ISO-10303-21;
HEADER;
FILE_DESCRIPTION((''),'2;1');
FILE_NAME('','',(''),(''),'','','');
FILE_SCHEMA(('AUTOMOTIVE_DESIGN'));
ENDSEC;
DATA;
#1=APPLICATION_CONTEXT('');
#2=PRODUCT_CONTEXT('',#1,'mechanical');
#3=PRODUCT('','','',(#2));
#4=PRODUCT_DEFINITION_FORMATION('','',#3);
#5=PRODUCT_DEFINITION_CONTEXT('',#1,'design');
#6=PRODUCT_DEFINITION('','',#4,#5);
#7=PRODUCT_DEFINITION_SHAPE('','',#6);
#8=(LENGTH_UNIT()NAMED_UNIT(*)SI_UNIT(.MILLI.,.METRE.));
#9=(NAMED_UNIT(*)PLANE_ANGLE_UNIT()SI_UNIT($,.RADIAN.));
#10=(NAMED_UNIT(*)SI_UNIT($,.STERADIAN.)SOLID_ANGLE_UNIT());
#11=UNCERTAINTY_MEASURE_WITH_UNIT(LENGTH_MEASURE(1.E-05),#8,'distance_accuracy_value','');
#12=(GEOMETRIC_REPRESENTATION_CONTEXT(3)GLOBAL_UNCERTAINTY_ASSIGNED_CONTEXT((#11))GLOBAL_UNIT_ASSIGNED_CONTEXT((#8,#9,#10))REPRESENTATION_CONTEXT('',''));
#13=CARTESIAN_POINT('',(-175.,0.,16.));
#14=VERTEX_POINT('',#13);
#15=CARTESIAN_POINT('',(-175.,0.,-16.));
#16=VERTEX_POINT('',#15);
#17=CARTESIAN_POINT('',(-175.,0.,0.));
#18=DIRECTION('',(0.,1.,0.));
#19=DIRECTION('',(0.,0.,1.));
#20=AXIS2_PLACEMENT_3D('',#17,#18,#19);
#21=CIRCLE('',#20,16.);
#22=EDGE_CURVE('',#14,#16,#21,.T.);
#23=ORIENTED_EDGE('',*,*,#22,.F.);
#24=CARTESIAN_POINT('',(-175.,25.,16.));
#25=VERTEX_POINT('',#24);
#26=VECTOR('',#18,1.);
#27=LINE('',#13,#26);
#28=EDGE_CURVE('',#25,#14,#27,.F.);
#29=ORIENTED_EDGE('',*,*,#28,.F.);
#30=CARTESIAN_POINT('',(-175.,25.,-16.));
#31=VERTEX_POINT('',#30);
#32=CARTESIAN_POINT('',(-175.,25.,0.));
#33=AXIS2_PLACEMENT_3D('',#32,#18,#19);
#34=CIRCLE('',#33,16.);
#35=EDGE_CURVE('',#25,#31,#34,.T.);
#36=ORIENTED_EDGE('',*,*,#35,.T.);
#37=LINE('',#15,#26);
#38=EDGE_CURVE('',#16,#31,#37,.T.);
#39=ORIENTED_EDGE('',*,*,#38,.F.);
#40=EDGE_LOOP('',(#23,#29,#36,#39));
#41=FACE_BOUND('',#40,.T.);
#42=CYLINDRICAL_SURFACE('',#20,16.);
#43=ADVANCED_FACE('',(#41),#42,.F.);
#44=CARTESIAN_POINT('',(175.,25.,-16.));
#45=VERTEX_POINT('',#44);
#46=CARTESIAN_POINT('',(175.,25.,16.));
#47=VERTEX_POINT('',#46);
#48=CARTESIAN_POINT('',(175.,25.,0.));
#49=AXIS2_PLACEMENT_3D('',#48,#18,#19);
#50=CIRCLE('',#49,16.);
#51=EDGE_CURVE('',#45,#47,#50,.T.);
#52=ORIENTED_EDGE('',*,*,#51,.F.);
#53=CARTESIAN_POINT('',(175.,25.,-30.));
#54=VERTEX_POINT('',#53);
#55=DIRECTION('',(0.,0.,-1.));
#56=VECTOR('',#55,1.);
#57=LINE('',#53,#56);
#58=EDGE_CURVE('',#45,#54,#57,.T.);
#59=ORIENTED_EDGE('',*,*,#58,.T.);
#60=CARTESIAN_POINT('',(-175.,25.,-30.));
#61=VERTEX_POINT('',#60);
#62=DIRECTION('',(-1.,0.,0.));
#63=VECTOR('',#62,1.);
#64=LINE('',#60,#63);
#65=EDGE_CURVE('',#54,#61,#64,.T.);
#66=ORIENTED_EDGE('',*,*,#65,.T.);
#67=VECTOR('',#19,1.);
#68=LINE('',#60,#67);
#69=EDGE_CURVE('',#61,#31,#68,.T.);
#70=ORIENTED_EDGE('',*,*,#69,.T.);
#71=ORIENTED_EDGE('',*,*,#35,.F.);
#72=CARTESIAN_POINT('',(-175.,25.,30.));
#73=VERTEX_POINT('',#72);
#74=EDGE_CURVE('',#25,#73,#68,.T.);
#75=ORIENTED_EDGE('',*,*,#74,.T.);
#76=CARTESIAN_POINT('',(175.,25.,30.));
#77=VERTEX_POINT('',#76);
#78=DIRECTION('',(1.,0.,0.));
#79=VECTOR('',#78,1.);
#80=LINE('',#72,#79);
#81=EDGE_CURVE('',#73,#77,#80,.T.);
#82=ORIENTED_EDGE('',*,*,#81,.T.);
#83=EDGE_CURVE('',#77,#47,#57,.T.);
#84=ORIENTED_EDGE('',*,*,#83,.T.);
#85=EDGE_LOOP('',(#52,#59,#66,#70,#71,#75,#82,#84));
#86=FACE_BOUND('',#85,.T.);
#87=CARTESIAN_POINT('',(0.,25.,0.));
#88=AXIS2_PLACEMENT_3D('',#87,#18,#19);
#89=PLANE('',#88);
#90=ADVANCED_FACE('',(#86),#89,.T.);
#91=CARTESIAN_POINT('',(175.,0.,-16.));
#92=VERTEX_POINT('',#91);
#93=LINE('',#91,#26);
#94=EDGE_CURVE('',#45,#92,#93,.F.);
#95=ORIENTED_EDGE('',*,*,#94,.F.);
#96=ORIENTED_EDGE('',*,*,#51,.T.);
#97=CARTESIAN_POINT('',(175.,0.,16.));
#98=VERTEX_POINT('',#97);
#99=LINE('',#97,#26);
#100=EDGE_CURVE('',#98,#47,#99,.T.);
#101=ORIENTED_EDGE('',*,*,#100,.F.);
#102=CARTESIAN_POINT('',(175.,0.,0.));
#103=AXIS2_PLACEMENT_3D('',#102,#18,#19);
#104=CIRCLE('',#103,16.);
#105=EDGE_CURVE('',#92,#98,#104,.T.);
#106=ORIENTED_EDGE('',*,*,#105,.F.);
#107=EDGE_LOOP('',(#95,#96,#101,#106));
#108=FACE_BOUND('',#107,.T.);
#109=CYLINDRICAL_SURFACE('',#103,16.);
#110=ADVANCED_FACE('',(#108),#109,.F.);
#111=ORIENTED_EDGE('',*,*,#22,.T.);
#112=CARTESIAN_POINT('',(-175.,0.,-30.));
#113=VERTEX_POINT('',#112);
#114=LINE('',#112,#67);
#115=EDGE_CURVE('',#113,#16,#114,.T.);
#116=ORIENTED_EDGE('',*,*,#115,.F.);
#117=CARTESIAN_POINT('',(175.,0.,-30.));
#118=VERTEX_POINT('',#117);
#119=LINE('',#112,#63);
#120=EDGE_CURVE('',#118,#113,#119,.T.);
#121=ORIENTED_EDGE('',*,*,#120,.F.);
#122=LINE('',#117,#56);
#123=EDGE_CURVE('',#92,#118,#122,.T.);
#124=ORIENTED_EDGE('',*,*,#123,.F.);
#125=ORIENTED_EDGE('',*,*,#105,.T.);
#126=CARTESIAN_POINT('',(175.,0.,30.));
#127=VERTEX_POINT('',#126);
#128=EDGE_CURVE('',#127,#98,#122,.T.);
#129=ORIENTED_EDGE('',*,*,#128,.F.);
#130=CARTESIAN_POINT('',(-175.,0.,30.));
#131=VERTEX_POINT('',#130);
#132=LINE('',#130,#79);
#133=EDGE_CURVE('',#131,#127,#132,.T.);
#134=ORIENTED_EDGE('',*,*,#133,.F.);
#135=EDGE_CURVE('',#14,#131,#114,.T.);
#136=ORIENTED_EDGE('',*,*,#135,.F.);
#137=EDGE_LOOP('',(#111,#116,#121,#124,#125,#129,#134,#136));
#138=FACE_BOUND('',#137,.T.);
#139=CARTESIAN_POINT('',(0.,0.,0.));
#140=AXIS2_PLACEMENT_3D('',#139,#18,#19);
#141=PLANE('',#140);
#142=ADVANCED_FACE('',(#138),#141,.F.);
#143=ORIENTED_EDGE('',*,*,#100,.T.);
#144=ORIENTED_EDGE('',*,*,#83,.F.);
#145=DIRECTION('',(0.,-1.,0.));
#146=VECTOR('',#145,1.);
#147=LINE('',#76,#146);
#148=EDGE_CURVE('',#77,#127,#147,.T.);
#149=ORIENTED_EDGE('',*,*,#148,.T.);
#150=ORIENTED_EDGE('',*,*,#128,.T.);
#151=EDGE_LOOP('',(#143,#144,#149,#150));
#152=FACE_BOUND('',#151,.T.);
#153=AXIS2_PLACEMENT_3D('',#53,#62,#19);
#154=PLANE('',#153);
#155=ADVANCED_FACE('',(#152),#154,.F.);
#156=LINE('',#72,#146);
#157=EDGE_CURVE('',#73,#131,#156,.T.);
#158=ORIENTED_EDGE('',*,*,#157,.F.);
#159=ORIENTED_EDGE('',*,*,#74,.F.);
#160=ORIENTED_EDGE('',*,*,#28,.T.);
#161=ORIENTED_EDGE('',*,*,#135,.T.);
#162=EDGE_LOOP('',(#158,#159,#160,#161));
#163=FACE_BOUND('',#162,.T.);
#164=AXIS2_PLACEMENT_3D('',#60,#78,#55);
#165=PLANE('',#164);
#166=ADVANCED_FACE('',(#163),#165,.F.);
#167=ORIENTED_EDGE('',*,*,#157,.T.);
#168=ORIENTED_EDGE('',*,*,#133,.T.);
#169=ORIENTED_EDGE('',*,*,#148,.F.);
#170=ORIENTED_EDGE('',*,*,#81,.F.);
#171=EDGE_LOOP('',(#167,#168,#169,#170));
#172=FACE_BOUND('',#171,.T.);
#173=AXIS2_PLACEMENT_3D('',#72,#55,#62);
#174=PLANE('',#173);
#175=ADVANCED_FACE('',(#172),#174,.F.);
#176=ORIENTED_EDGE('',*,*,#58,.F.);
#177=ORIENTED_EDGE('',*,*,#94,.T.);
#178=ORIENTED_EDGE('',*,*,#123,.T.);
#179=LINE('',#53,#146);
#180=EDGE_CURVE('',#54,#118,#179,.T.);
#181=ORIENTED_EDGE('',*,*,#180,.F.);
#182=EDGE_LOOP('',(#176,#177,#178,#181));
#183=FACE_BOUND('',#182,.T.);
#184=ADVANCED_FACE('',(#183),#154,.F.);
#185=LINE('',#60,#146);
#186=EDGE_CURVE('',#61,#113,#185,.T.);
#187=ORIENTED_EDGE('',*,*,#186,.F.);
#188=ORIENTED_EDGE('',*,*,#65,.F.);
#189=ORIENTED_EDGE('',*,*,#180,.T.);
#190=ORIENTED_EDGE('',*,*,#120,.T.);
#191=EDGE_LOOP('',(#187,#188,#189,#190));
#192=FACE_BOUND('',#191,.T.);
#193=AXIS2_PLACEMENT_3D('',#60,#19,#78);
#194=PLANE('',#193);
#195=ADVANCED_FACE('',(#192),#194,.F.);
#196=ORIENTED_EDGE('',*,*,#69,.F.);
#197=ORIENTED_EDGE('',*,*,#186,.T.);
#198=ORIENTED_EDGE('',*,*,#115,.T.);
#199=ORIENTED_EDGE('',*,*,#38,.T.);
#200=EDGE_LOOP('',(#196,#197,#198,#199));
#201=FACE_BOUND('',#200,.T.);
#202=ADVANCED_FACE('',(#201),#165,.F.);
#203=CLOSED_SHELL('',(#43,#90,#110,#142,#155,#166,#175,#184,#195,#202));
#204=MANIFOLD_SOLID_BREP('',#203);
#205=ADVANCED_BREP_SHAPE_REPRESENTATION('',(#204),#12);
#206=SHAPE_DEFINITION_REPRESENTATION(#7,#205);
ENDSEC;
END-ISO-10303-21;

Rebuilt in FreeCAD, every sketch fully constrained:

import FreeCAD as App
import Part
import Sketcher
from FreeCAD import Vector
Q = App.Units.Quantity

doc = App.newDocument("Part")
body = doc.addObject("PartDesign::Body", "Body")

sketch1 = doc.addObject("Sketcher::SketchObject", "Sketch")
body.addObject(sketch1)
sketch1.AttachmentSupport = (doc.XZ_Plane, [""])
sketch1.MapMode = "FlatFace"
sketch1.addGeometry([
    Part.LineSegment(Vector(-175, -30, 0), Vector(-175, 30, 0)),
    Part.LineSegment(Vector(-175, 30, 0), Vector(175, 30, 0)),
    Part.LineSegment(Vector(175, 30, 0), Vector(175, -30, 0)),
    Part.LineSegment(Vector(175, -30, 0), Vector(-175, -30, 0)),
], False)
sketch1.addConstraint([
    Sketcher.Constraint("Coincident", 0, 2, 1, 1),
    Sketcher.Constraint("Coincident", 1, 2, 2, 1),
    Sketcher.Constraint("Coincident", 2, 2, 3, 1),
    Sketcher.Constraint("Coincident", 3, 2, 0, 1),
    Sketcher.Constraint("Vertical", 0),
    Sketcher.Constraint("Horizontal", 1),
    Sketcher.Constraint("Vertical", 2),
    Sketcher.Constraint("Horizontal", 3),
    Sketcher.Constraint("Symmetric", 0, 2, 2, 2, -1, 1),
    Sketcher.Constraint("DistanceX", 1, 1, 1, 2, Q("350 mm")),
    Sketcher.Constraint("DistanceY", 0, 1, 0, 2, Q("60 mm")),
])
pad1 = doc.addObject("PartDesign::Pad", "Pad")
body.addObject(pad1)
pad1.Profile = sketch1
pad1.Length = 25
pad1.Reversed = True

sketch2 = doc.addObject("Sketcher::SketchObject", "Sketch001")
body.addObject(sketch2)
sketch2.AttachmentSupport = (doc.XZ_Plane, [""])
sketch2.MapMode = "FlatFace"
sketch2.AttachmentOffset = App.Placement(Vector(0, 0, -25), App.Rotation())
sketch2.addGeometry([
    Part.Circle(Vector(-175, 0, 0), Vector(0, 0, 1), 16),
    Part.Circle(Vector(175, 0, 0), Vector(0, 0, 1), 16),
], False)
sketch2.addConstraint([
    Sketcher.Constraint("Equal", 0, 1),
    Sketcher.Constraint("Symmetric", 0, 3, 1, 3, -1, 1),
    Sketcher.Constraint("PointOnObject", 0, 3, -1),
    Sketcher.Constraint("Diameter", 0, Q("32 mm")),
    Sketcher.Constraint("DistanceX", 0, 3, -1, 1, Q("175 mm")),
])
pocket1 = doc.addObject("PartDesign::Pocket", "Pocket")
body.addObject(pocket1)
pocket1.Profile = sketch2
pocket1.Type = "ThroughAll"
pocket1.Reversed = True

doc.recompute()
